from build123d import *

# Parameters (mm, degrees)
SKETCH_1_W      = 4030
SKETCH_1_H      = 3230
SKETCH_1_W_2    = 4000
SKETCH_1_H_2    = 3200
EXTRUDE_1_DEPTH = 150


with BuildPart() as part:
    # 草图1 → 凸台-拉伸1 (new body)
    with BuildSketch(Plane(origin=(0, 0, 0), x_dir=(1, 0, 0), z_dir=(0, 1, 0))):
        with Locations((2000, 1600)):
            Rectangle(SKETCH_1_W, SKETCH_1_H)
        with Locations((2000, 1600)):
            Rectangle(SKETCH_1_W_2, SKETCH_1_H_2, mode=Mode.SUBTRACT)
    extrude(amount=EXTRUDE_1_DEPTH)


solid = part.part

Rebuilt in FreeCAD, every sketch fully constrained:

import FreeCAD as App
import Part
import Sketcher

V = App.Vector
Q = App.Units.Quantity

doc = App.newDocument("Part")
params = doc.addObject("Spreadsheet::Sheet", "Params")
for row, (alias, value) in enumerate([
    ("sketch1_width", "4030 mm"),
    ("sketch1_width2", "4000 mm"),
    ("sketch1_height", "3230 mm"),
    ("sketch1_height2", "3200 mm"),
    ("pad1_length", "150 mm"),
], start=1):
    params.set(f"A{row}", alias)
    params.set(f"B{row}", "=" + value)
    params.setAlias(f"B{row}", alias)

body = doc.addObject("PartDesign::Body", "Body")

sketch1 = body.newObject("Sketcher::SketchObject", "Sketch")
sketch1.AttachmentSupport = (doc.getObject("XZ_Plane"), [""])
sketch1.MapMode = "FlatFace"
sketch1.addGeometry(Part.LineSegment(V(-15, -3215, 0), V(-15, 15, 0)), False)
sketch1.addGeometry(Part.LineSegment(V(-15, 15, 0), V(4015, 15, 0)), False)
sketch1.addGeometry(Part.LineSegment(V(4015, 15, 0), V(4015, -3215, 0)), False)
sketch1.addGeometry(Part.LineSegment(V(4015, -3215, 0), V(-15, -3215, 0)), False)
sketch1.addGeometry(Part.LineSegment(V(4000, 0, 0), V(0, 0, 0)), False)
sketch1.addGeometry(Part.LineSegment(V(0, 0, 0), V(0, -3200, 0)), False)
sketch1.addGeometry(Part.LineSegment(V(0, -3200, 0), V(4000, -3200, 0)), False)
sketch1.addGeometry(Part.LineSegment(V(4000, -3200, 0), V(4000, 0, 0)), False)
sketch1.addConstraint(Sketcher.Constraint("Coincident", 0, 2, 1, 1))
sketch1.addConstraint(Sketcher.Constraint("Coincident", 1, 2, 2, 1))
sketch1.addConstraint(Sketcher.Constraint("Coincident", 2, 2, 3, 1))
sketch1.addConstraint(Sketcher.Constraint("Coincident", 3, 2, 0, 1))
sketch1.addConstraint(Sketcher.Constraint("Coincident", 4, 2, 5, 1))
sketch1.addConstraint(Sketcher.Constraint("Coincident", 5, 2, 6, 1))
sketch1.addConstraint(Sketcher.Constraint("Coincident", 6, 2, 7, 1))
sketch1.addConstraint(Sketcher.Constraint("Coincident", 7, 2, 4, 1))
sketch1.addConstraint(Sketcher.Constraint("Vertical", 0))
sketch1.addConstraint(Sketcher.Constraint("Horizontal", 1))
sketch1.addConstraint(Sketcher.Constraint("Vertical", 2))
sketch1.addConstraint(Sketcher.Constraint("Horizontal", 3))
sketch1.addConstraint(Sketcher.Constraint("Horizontal", 4))
sketch1.addConstraint(Sketcher.Constraint("Vertical", 5))
sketch1.addConstraint(Sketcher.Constraint("Horizontal", 6))
sketch1.addConstraint(Sketcher.Constraint("Vertical", 7))
sketch1.addConstraint(Sketcher.Constraint("Coincident", 4, 2, -1, 1))
sketch1.addConstraint(Sketcher.Constraint("DistanceX", 1, 1, 1, 2, Q("4030 mm")))
sketch1.addConstraint(Sketcher.Constraint("DistanceX", 4, 2, 4, 1, Q("4000 mm")))
sketch1.addConstraint(Sketcher.Constraint("DistanceY", 0, 1, 0, 2, Q("3230 mm")))
sketch1.addConstraint(Sketcher.Constraint("DistanceY", 5, 2, 5, 1, Q("3200 mm")))
sketch1.addConstraint(Sketcher.Constraint("DistanceX", 0, 2, -1, 1, Q("15 mm")))
sketch1.addConstraint(Sketcher.Constraint("DistanceY", -1, 1, 0, 2, Q("15 mm")))
sketch1.setExpression("Constraints[17]", "Params.sketch1_width")
sketch1.setExpression("Constraints[18]", "Params.sketch1_width2")
sketch1.setExpression("Constraints[19]", "Params.sketch1_height")
sketch1.setExpression("Constraints[20]", "Params.sketch1_height2")
pad1 = body.newObject("PartDesign::Pad", "Pad")
pad1.Profile = sketch1
pad1.setExpression("Length", "Params.pad1_length")
pad1.Reversed = True

doc.recompute()
